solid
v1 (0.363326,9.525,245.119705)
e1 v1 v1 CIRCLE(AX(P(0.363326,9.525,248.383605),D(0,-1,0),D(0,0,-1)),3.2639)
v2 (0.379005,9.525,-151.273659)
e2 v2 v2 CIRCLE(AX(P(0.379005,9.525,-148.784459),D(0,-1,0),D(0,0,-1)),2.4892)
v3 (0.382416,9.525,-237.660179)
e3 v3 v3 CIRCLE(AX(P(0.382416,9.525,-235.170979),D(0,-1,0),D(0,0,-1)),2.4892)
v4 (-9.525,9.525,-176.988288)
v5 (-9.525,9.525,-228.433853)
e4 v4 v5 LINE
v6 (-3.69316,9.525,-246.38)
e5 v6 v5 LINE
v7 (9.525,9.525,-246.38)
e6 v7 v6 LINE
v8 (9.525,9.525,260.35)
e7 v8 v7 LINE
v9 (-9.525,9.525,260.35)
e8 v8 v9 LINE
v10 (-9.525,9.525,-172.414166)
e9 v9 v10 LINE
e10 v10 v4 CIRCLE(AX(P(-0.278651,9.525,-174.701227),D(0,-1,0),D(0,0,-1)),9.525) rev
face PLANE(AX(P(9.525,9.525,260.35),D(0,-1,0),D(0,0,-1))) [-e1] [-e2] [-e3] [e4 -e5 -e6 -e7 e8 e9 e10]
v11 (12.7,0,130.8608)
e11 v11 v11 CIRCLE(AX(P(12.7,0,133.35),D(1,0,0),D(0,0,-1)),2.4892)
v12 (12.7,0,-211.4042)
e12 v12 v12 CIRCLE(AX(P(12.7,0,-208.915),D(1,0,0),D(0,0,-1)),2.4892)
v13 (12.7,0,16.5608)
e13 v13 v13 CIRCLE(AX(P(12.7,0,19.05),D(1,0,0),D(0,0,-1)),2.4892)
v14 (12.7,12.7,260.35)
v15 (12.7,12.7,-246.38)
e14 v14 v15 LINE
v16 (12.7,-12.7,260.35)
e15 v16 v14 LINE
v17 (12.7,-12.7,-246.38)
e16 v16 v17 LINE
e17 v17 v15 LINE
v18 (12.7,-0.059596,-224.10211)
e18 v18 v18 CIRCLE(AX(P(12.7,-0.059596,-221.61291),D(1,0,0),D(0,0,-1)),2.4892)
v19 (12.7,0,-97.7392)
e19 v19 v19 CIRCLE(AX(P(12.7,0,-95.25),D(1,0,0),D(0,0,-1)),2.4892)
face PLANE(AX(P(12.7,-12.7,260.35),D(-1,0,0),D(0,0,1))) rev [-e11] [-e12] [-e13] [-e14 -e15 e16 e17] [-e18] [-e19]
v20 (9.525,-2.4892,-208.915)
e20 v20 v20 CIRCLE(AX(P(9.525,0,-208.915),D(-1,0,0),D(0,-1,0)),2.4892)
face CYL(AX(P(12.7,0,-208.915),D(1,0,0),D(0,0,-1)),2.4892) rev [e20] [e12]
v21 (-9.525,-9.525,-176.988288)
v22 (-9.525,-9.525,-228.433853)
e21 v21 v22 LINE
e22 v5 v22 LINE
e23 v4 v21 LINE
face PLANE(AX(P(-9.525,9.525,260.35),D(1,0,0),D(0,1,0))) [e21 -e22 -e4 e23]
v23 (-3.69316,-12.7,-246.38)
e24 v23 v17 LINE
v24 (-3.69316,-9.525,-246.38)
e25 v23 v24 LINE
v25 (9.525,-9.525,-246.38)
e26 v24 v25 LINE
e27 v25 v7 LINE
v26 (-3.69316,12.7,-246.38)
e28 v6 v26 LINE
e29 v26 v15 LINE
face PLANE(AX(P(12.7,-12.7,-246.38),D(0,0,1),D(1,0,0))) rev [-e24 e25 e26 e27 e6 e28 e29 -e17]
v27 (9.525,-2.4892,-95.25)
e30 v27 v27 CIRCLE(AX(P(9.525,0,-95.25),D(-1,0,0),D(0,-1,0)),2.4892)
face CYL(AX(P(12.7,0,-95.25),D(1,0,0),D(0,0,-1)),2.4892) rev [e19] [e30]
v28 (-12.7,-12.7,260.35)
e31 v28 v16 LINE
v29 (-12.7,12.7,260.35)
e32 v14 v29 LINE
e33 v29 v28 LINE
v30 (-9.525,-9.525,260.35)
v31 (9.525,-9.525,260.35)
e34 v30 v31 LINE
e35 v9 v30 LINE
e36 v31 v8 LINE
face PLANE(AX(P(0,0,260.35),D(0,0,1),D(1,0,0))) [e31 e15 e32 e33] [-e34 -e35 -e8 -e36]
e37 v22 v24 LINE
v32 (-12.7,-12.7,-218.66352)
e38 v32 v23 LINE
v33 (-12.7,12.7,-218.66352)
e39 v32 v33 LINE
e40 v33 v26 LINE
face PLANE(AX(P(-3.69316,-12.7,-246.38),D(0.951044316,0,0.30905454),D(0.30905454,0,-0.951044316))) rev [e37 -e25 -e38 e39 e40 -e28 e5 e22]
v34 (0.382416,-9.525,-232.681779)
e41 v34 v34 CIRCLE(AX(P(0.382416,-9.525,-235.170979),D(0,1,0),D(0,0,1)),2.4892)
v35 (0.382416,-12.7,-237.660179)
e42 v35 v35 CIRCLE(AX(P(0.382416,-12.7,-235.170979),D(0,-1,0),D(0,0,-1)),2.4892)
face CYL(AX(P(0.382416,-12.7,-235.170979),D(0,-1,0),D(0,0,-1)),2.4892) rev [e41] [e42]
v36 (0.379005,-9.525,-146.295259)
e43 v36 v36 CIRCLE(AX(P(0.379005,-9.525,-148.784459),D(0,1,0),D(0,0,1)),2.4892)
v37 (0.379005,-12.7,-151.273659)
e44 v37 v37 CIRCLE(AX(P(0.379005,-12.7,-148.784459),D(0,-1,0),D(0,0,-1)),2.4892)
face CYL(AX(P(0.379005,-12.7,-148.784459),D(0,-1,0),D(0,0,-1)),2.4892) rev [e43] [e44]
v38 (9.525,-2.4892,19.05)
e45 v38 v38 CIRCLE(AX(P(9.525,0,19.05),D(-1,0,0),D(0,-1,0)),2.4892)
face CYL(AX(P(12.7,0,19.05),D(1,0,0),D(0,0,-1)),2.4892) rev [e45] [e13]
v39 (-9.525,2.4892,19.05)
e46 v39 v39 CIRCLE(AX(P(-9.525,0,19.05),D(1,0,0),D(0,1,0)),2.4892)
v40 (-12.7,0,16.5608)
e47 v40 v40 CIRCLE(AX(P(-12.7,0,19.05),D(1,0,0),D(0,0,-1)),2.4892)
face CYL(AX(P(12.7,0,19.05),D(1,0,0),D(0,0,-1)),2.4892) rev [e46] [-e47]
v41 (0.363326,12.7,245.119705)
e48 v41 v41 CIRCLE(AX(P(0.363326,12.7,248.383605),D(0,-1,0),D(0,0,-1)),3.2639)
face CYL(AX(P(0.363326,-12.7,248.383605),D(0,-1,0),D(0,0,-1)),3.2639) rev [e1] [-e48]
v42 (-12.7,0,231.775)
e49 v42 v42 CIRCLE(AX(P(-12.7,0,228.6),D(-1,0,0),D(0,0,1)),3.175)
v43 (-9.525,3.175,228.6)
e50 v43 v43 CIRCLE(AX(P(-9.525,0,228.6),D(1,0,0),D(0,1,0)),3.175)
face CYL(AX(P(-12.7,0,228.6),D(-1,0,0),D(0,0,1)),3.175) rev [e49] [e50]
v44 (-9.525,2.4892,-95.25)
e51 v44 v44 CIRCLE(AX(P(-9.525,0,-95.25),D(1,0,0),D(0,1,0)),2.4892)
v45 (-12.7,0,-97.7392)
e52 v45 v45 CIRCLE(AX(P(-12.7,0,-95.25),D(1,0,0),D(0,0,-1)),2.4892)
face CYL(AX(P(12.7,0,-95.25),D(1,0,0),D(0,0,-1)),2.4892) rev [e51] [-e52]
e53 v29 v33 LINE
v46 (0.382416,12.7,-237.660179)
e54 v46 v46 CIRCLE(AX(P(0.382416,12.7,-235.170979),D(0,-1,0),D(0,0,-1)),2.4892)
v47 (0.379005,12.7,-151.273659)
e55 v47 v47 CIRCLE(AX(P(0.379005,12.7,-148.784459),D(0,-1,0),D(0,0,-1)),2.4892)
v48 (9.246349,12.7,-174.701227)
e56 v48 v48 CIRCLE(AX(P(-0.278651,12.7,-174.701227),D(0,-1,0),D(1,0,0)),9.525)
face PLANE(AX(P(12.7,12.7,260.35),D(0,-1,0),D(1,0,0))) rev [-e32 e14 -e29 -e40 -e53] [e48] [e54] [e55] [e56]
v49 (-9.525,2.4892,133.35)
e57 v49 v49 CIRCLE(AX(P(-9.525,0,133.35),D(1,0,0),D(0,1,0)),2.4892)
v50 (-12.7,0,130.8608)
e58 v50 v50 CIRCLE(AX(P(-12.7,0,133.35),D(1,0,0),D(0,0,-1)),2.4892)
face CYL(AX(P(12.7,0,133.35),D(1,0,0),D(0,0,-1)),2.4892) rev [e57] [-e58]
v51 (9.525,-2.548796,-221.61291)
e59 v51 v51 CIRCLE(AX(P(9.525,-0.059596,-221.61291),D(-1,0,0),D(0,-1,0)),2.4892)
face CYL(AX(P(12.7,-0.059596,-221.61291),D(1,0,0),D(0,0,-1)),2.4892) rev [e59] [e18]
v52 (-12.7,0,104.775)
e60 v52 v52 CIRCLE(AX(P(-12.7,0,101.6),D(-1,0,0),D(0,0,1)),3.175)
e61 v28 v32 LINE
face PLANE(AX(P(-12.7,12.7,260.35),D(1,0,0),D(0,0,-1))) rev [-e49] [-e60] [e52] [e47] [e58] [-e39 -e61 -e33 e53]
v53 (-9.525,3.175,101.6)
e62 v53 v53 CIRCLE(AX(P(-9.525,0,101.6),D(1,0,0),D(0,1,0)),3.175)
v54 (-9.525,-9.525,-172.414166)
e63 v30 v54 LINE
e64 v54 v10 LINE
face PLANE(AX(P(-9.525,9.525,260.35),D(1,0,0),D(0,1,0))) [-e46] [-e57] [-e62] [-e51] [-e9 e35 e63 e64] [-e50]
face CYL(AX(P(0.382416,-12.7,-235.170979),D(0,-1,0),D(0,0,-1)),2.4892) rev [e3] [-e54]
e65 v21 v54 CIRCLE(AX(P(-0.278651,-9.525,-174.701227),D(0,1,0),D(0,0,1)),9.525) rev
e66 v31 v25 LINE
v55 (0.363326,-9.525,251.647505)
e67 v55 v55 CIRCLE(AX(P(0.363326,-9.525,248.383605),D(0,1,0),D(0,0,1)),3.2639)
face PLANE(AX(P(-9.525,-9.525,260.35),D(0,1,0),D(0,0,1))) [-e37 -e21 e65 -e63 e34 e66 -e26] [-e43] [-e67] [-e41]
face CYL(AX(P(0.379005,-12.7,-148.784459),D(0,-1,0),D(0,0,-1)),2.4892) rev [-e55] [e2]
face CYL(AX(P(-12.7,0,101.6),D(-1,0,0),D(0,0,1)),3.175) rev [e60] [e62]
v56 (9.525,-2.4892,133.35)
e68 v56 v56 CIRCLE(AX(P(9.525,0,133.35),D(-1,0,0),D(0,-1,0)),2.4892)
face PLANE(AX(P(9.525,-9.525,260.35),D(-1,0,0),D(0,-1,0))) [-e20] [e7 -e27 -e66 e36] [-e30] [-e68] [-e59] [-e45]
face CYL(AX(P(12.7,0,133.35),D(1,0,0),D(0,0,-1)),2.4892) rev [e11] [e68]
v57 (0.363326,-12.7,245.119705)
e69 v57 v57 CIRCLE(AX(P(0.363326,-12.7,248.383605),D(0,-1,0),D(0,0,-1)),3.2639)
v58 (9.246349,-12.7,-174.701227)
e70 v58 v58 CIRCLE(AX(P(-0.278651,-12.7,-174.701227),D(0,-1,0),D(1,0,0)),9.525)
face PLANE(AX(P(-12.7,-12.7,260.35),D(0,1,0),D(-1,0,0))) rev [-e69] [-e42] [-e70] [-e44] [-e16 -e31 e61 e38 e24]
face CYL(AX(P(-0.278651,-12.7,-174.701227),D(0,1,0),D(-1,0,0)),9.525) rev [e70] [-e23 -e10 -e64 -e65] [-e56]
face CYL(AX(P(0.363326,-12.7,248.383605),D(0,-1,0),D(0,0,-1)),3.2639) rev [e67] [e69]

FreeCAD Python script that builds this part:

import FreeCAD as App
import Part
import Sketcher
from FreeCAD import Vector
Q = App.Units.Quantity


def add_polygon(sketch, points):
    """Adds a closed chain of lines whose ends are joined by coincident constraints."""
    first, n = sketch.GeometryCount, len(points)
    for a, b in zip(points, points[1:] + points[:1]):
        sketch.addGeometry(Part.LineSegment(App.Vector(*a, 0), App.Vector(*b, 0)), False)
    for i in range(n):
        sketch.addConstraint(Sketcher.Constraint("Coincident", first + i, 2, first + (i + 1) % n, 1))

doc = App.newDocument("Part")
body = doc.addObject("PartDesign::Body", "Body")

sketch1 = doc.addObject("Sketcher::SketchObject", "Sketch")
body.addObject(sketch1)
sketch1.AttachmentSupport = (doc.XY_Plane, [""])
sketch1.MapMode = "FlatFace"
add_polygon(sketch1, [(-13, 13), (-13, -13), (13, -13), (13, 13)])
add_polygon(sketch1, [(10, -10), (-10, -10), (-10, 10), (10, 10)])
sketch1.addConstraint([
    Sketcher.Constraint("Vertical", 0),
    Sketcher.Constraint("Horizontal", 1),
    Sketcher.Constraint("Vertical", 2),
    Sketcher.Constraint("Horizontal", 3),
    Sketcher.Constraint("Horizontal", 4),
    Sketcher.Constraint("Vertical", 5),
    Sketcher.Constraint("Horizontal", 6),
    Sketcher.Constraint("Vertical", 7),
    Sketcher.Constraint("Symmetric", 0, 2, 2, 2, -1, 1),
    Sketcher.Constraint("Symmetric", 4, 2, 6, 2, -1, 1),
    Sketcher.Constraint("Equal", 3, 0),
    Sketcher.Constraint("Equal", 6, 5),
    Sketcher.Constraint("DistanceX", 1, 1, 1, 2, Q("1 in")),
    Sketcher.Constraint("DistanceX", 4, 2, 4, 1, Q("0.75 in")),
])
pad1 = doc.addObject("PartDesign::Pad", "Pad")
body.addObject(pad1)
pad1.Profile = sketch1
pad1.Type = "TwoLengths"
pad1.Length = Q("10.25 in")
pad1.Length2 = Q("10.25 in")

sketch2 = doc.addObject("Sketcher::SketchObject", "Sketch001")
body.addObject(sketch2)
sketch2.AttachmentSupport = (doc.XZ_Plane, [""])
sketch2.MapMode = "FlatFace"
sketch2.AttachmentOffset = App.Placement(Vector(0, 0, -0.5 * 25.4), App.Rotation())
add_polygon(sketch2, [(-13, -260), (-13, -219), (-4, -246), (13, -246), (13, -260)])
sketch2.addConstraint([
    Sketcher.Constraint("Vertical", 0),
    Sketcher.Constraint("Horizontal", 2),
    Sketcher.Constraint("Vertical", 3),
    Sketcher.Constraint("Horizontal", 4),
    Sketcher.Constraint("DistanceX", 4, 2, 4, 1, Q("1 in")),
    Sketcher.Constraint("DistanceY", 3, 2, 3, 1, Q("0.55 in")),
    Sketcher.Constraint("DistanceX", 0, 2, -1, 1, Q("0.5 in")),
    Sketcher.Constraint("DistanceY", 1, 2, -1, 1, Q("9.7 in")),
    Sketcher.Constraint("DistanceX", 2, 1, 2, 2, Q("0.6454 in")),
    Sketcher.Constraint("DistanceY", 0, 1, 0, 2, Q("1.6412 in")),
])
pocket1 = doc.addObject("PartDesign::Pocket", "Pocket")
body.addObject(pocket1)
pocket1.Profile = sketch2
pocket1.Length = Q("1 in")
pocket1.Reversed = True

sketch3 = doc.addObject("Sketcher::SketchObject", "Sketch002")
body.addObject(sketch3)
sketch3.AttachmentSupport = (doc.XZ_Plane, [""])
sketch3.MapMode = "FlatFace"
sketch3.AttachmentOffset = App.Placement(Vector(0, 0, -0.5 * 25.4), App.Rotation())
sketch3.addGeometry(Part.Circle(Vector(0, -175, 0), Vector(0, 0, 1), 10), False)
sketch3.addConstraint([
    Sketcher.Constraint("Diameter", 0, Q("0.75 in")),
    Sketcher.Constraint("DistanceX", 0, 3, -1, 1, 0.278651),
    Sketcher.Constraint("DistanceY", 0, 3, -1, 1, 174.701227),
])
pocket2 = doc.addObject("PartDesign::Pocket", "Pocket001")
body.addObject(pocket2)
pocket2.Profile = sketch3
pocket2.Type = "ThroughAll"
pocket2.Reversed = True

sketch4 = doc.addObject("Sketcher::SketchObject", "Sketch003")
body.addObject(sketch4)
sketch4.AttachmentSupport = (doc.XZ_Plane, [""])
sketch4.MapMode = "FlatFace"
sketch4.AttachmentOffset = App.Placement(Vector(0, 0, 0.5 * 25.4), App.Rotation())
sketch4.addGeometry([
    Part.Circle(Vector(0.4, -148.8, 0), Vector(0, 0, 1), 2.5),
    Part.Circle(Vector(0.4, -235.2, 0), Vector(0, 0, 1), 2.5),
], False)
sketch4.addConstraint([
    Sketcher.Constraint("Equal", 0, 1),
    Sketcher.Constraint("Diameter", 0, Q("0.196 in")),
    Sketcher.Constraint("DistanceY", 1, 3, -1, 1, Q("9.2587 in")),
    Sketcher.Constraint("DistanceY", 0, 3, -1, 1, 148.784459),
    Sketcher.Constraint("DistanceX", 0, 3, 1, 3, 0.00341),
    Sketcher.Constraint("DistanceX", -1, 1, 0, 3, 0.379005),
])
doc.recompute()
hole = doc.addObject("PartDesign::Hole", "Hole")
body.addObject(hole)
hole.Profile = sketch4
hole.ThreadType = "None"
hole.Diameter = Q("0.196 in")
hole.DepthType = "ThroughAll"

sketch5 = doc.addObject("Sketcher::SketchObject", "Sketch004")
body.addObject(sketch5)
sketch5.AttachmentSupport = (doc.XZ_Plane, [""])
sketch5.MapMode = "FlatFace"
sketch5.AttachmentOffset = App.Placement(Vector(0, 0, 0.5 * 25.4), App.Rotation())
sketch5.addGeometry(Part.Circle(Vector(0.4, 248.4, 0), Vector(0, 0, 1), 3.3), False)
sketch5.addConstraint([
    Sketcher.Constraint("Diameter", 0, Q("0.257 in")),
    Sketcher.Constraint("DistanceX", -1, 1, 0, 3, 0.363326),
    Sketcher.Constraint("DistanceY", -1, 1, 0, 3, 248.383605),
])
doc.recompute()
hole2 = doc.addObject("PartDesign::Hole", "Hole001")
body.addObject(hole2)
hole2.Profile = sketch5
hole2.ThreadType = "None"
hole2.Diameter = Q("0.257 in")
hole2.DepthType = "ThroughAll"

sketch6 = doc.addObject("Sketcher::SketchObject", "Sketch005")
body.addObject(sketch6)
sketch6.AttachmentSupport = (doc.YZ_Plane, [""])
sketch6.MapMode = "FlatFace"
sketch6.AttachmentOffset = App.Placement(Vector(0, 0, 0.5 * 25.4), App.Rotation())
sketch6.addGeometry([
    Part.Circle(Vector(-0.1, -221.6, 0), Vector(0, 0, 1), 2.5),
    Part.Circle(Vector(0, -208.9, 0), Vector(0, 0, 1), 2.5),
], False)
sketch6.addConstraint([
    Sketcher.Constraint("Equal", 0, 1),
    Sketcher.Constraint("PointOnObject", 1, 3, -2),
    Sketcher.Constraint("Diameter", 0, Q("0.196 in")),
    Sketcher.Constraint("DistanceY", 1, 3, -1, 1, Q("8.225 in")),
    Sketcher.Constraint("DistanceY", 0, 3, -1, 1, 221.61291),
    Sketcher.Constraint("DistanceX", 0, 3, -1, 1, 0.059596),
])
doc.recompute()
hole3 = doc.addObject("PartDesign::Hole", "Hole002")
body.addObject(hole3)
hole3.Profile = sketch6
hole3.ThreadType = "None"
hole3.Diameter = Q("0.196 in")
hole3.DepthType = "Dimension"
hole3.Depth = Q("0.2 in")
hole3.DrillPoint = "Angled"
hole3.DrillPointAngle = 118

sketch7 = doc.addObject("Sketcher::SketchObject", "Sketch006")
body.addObject(sketch7)
sketch7.AttachmentSupport = (doc.YZ_Plane, [""])
sketch7.MapMode = "FlatFace"
sketch7.AttachmentOffset = App.Placement(Vector(0, 0, 0.5 * 25.4), App.Rotation())
sketch7.addGeometry([
    Part.Circle(Vector(0, 133.3, 0), Vector(0, 0, 1), 2.5),
    Part.Circle(Vector(0, 19.1, 0), Vector(0, 0, 1), 2.5),
    Part.Circle(Vector(0, -95.2, 0), Vector(0, 0, 1), 2.5),
], False)
sketch7.addConstraint([
    Sketcher.Constraint("Equal", 0, 1),
    Sketcher.Constraint("Equal", 1, 2),
    Sketcher.Constraint("PointOnObject", 0, 3, -2),
    Sketcher.Constraint("PointOnObject", 1, 3, -2),
    Sketcher.Constraint("PointOnObject", 2, 3, -2),
    Sketcher.Constraint("Diameter", 0, Q("0.196 in")),
    Sketcher.Constraint("DistanceY", 2, 3, 0, 3, Q("9 in")),
    Sketcher.Constraint("DistanceY", 1, 3, 0, 3, Q("4.5 in")),
    Sketcher.Constraint("DistanceY", -1, 1, 0, 3, Q("5.25 in")),
])
doc.recompute()
hole4 = doc.addObject("PartDesign::Hole", "Hole003")
body.addObject(hole4)
hole4.Profile = sketch7
hole4.ThreadType = "None"
hole4.Diameter = Q("0.196 in")
hole4.DepthType = "ThroughAll"

sketch8 = doc.addObject("Sketcher::SketchObject", "Sketch007")
body.addObject(sketch8)
sketch8.AttachmentSupport = (doc.YZ_Plane, [""])
sketch8.MapMode = "FlatFace"
sketch8.AttachmentOffset = App.Placement(Vector(0, 0, -0.5 * 25.4), App.Rotation())
sketch8.addGeometry([
    Part.Circle(Vector(0, 101.6, 0), Vector(0, 0, 1), 3.2),
    Part.Circle(Vector(0, 228.6, 0), Vector(0, 0, 1), 3.2),
], False)
sketch8.addConstraint([
    Sketcher.Constraint("Equal", 0, 1),
    Sketcher.Constraint("PointOnObject", 0, 3, -2),
    Sketcher.Constraint("PointOnObject", 1, 3, -2),
    Sketcher.Constraint("Diameter", 0, Q("0.25 in")),
    Sketcher.Constraint("DistanceY", -1, 1, 0, 3, Q("4 in")),
    Sketcher.Constraint("DistanceY", -1, 1, 1, 3, Q("9 in")),
])
doc.recompute()
hole5 = doc.addObject("PartDesign::Hole", "Hole004")
body.addObject(hole5)
hole5.Profile = sketch8
hole5.ThreadType = "None"
hole5.Diameter = Q("0.25 in")
hole5.DepthType = "Dimension"
hole5.Depth = Q("0.2 in")
hole5.DrillPoint = "Angled"
hole5.DrillPointAngle = 118
hole5.Reversed = True

doc.recompute()
